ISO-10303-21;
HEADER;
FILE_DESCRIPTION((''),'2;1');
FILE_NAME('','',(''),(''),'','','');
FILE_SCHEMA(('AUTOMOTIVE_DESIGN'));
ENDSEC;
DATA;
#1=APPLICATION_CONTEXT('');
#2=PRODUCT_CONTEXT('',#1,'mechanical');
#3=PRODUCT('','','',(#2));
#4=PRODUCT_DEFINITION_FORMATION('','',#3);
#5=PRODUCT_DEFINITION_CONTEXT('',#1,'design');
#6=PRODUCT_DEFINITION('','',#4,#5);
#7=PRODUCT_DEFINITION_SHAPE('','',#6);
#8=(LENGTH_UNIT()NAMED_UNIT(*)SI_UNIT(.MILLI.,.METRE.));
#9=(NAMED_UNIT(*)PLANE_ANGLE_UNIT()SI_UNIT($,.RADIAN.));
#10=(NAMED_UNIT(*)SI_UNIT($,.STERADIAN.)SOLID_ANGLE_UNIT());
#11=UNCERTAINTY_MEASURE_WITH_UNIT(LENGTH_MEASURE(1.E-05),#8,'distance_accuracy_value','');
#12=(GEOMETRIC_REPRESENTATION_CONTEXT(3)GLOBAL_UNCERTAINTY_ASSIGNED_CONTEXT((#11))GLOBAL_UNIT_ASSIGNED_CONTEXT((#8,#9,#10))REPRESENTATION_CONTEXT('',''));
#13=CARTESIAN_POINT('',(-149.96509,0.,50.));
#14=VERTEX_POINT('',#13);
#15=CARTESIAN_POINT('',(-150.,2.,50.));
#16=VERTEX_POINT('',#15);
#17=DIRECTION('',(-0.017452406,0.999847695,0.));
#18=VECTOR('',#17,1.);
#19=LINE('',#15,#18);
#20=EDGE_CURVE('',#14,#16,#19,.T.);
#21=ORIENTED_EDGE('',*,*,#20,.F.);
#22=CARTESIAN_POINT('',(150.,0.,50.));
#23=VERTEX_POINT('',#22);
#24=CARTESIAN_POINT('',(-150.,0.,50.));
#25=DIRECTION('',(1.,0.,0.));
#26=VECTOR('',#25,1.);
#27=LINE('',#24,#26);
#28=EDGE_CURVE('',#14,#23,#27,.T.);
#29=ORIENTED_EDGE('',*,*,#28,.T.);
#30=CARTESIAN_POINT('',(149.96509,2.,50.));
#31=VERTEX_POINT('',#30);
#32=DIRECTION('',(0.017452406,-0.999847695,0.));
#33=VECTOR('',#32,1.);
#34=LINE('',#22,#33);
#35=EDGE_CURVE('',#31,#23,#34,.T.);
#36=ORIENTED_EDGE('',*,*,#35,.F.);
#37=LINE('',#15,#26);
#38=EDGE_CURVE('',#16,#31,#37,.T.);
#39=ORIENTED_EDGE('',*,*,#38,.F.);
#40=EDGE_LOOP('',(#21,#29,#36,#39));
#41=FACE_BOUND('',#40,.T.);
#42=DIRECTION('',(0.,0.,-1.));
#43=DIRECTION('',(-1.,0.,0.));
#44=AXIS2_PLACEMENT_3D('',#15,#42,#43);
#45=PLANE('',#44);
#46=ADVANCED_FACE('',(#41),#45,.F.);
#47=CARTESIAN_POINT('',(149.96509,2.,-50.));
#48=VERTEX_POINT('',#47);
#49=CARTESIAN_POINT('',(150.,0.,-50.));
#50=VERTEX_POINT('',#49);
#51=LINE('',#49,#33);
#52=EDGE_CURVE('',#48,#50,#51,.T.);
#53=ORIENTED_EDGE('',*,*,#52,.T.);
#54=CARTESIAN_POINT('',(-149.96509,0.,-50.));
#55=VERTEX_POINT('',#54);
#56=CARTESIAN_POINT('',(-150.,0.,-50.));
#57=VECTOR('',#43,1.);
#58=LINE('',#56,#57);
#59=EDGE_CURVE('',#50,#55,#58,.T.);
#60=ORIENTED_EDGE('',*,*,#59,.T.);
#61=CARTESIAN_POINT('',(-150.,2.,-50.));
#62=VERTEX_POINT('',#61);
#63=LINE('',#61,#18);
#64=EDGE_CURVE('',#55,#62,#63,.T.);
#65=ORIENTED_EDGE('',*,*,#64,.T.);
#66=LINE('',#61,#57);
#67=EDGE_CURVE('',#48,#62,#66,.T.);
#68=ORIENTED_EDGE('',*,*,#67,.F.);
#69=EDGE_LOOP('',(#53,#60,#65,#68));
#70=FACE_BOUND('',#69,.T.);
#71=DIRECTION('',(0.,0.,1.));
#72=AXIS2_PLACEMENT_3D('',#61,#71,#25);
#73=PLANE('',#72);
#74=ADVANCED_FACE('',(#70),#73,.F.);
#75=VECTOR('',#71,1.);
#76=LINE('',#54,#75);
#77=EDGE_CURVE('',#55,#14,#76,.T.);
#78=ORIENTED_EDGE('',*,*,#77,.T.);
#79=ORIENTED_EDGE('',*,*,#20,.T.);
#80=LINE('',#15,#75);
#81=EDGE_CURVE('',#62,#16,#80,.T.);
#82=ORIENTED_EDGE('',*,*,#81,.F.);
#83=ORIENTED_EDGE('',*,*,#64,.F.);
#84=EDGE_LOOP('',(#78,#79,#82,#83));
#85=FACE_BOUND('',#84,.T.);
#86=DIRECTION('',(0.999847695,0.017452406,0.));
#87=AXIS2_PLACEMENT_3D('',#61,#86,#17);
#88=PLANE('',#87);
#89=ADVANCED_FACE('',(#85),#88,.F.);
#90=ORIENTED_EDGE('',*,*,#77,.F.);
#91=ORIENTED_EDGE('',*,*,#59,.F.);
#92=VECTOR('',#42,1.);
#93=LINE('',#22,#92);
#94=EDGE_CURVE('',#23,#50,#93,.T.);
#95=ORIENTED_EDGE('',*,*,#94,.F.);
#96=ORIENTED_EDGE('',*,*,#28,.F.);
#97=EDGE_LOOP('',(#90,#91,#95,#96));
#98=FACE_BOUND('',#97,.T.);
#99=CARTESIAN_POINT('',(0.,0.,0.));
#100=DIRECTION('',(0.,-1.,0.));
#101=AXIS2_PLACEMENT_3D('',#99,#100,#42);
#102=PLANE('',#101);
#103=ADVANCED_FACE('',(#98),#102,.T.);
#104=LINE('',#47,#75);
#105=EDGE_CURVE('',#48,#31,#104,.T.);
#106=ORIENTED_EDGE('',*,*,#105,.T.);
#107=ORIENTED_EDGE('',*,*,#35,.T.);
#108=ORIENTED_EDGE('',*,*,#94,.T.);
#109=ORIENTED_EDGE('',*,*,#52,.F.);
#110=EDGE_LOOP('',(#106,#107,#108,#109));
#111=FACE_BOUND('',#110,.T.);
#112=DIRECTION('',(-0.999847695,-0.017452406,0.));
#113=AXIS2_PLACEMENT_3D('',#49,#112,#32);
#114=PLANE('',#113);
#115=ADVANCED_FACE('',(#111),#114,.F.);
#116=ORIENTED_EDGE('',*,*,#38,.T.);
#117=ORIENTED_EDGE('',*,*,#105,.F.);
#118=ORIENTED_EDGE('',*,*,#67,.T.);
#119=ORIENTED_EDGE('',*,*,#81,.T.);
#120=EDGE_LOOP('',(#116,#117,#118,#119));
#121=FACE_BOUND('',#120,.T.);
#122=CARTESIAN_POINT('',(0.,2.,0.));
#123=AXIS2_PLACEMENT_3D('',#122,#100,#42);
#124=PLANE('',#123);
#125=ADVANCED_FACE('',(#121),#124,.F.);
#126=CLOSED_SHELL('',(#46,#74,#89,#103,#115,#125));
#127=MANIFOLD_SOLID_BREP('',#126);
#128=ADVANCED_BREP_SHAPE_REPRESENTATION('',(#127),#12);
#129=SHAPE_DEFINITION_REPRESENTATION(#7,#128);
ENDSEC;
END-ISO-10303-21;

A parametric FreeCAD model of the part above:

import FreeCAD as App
import Part
import Sketcher
Q = App.Units.Quantity


def add_polygon(sketch, points):
    """Adds a closed chain of lines whose ends are joined by coincident constraints."""
    first, n = sketch.GeometryCount, len(points)
    for a, b in zip(points, points[1:] + points[:1]):
        sketch.addGeometry(Part.LineSegment(App.Vector(*a, 0), App.Vector(*b, 0)), False)
    for i in range(n):
        sketch.addConstraint(Sketcher.Constraint("Coincident", first + i, 2, first + (i + 1) % n, 1))

doc = App.newDocument("Part")
body = doc.addObject("PartDesign::Body", "Body")

sketch1 = body.newObject("Sketcher::SketchObject", "Sketch")
sketch1.AttachmentSupport = (doc.getObject("XZ_Plane"), [""])
sketch1.MapMode = "FlatFace"
add_polygon(sketch1, [(-150, -50), (-150, 50), (150, 50), (150, -50)])
sketch1.addConstraint([
    Sketcher.Constraint("Vertical", 0),
    Sketcher.Constraint("Horizontal", 1),
    Sketcher.Constraint("Vertical", 2),
    Sketcher.Constraint("Horizontal", 3),
    Sketcher.Constraint("Symmetric", 0, 2, 2, 2, -1, 1),
    Sketcher.Constraint("DistanceX", 1, 1, 1, 2, 300.0),
    Sketcher.Constraint("DistanceY", 0, 1, 0, 2, 100.0),
])
pad1 = body.newObject("PartDesign::Pad", "Pad")
pad1.Profile = sketch1
pad1.Length = 2
pad1.Reversed = True

sketch2 = body.newObject("Sketcher::SketchObject", "Sketch001")
sketch2.AttachmentSupport = (doc.getObject("XY_Plane"), [""])
sketch2.MapMode = "FlatFace"
sketch2.AttachmentOffset = App.Placement(App.Vector(0, 0, 50), App.Rotation())
add_polygon(sketch2, [(-149.96509, 0), (-150, 2), (-150, 0)])
add_polygon(sketch2, [(149.96509, 2), (150, 0), (150, 2)])
sketch2.addConstraint([
    Sketcher.Constraint("Vertical", 1),
    Sketcher.Constraint("Horizontal", 2),
    Sketcher.Constraint("Vertical", 4),
    Sketcher.Constraint("Horizontal", 5),
    Sketcher.Constraint("Symmetric", 1, 2, 3, 2, -1, 1),
    Sketcher.Constraint("PointOnObject", 1, 2, -1),
    Sketcher.Constraint("Parallel", 0, 3),
    Sketcher.Constraint("Horizontal", 0, 2, 4, 2),
    Sketcher.Constraint("DistanceY", 1, 2, 1, 1, 2.0),
    Sketcher.Constraint("Angle", 0, Q("91 deg")),
    Sketcher.Constraint("DistanceX", 0, 2, -1, 1, 150.0),
])
pocket1 = body.newObject("PartDesign::Pocket", "Pocket")
pocket1.Profile = sketch2
pocket1.Type = "ThroughAll"

doc.recompute()
